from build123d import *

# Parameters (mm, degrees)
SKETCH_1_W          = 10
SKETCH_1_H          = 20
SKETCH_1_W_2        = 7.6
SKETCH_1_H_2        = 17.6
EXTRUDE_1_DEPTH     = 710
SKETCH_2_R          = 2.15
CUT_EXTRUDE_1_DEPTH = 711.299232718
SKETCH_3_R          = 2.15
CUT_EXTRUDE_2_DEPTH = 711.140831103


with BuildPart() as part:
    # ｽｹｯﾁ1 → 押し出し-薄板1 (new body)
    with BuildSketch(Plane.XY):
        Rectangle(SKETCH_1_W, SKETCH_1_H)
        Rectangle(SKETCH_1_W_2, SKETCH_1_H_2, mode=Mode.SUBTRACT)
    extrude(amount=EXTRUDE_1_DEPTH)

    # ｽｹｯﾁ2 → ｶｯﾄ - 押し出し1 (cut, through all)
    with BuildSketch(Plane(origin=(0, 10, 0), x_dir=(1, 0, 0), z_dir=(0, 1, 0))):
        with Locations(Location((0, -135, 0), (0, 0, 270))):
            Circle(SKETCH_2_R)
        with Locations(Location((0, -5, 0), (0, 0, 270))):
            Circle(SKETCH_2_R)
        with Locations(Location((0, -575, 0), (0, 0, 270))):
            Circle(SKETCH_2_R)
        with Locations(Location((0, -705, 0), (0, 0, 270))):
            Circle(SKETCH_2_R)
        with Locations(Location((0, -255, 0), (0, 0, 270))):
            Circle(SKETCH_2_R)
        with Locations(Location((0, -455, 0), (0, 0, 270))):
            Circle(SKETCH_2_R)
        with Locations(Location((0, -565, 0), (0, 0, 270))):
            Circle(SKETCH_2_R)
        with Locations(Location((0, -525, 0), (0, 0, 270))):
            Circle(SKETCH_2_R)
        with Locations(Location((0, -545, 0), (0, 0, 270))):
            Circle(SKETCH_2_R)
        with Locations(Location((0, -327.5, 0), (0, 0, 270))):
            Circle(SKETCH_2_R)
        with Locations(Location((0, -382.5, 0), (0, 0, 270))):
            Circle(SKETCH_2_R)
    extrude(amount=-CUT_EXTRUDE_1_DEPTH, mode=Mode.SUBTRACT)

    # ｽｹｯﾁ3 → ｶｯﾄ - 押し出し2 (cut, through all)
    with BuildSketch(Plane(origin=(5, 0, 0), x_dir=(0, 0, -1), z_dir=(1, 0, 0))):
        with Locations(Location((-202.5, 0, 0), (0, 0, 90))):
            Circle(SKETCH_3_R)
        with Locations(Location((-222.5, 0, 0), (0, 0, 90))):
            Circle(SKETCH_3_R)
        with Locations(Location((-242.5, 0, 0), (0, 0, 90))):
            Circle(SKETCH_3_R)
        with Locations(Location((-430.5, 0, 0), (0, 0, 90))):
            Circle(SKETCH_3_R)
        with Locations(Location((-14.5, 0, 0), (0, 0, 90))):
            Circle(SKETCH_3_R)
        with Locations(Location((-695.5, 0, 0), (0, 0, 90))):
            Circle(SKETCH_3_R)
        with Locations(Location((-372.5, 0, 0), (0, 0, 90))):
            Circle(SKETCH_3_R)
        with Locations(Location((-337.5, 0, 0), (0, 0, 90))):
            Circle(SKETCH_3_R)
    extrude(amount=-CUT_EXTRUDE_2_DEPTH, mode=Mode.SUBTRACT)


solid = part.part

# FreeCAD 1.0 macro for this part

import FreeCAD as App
import Part
import Sketcher
from FreeCAD import Vector

doc = App.newDocument("Part")
params = doc.addObject("Spreadsheet::Sheet", "Params")
for row, (alias, value) in enumerate([
    ("sketch1_width", "10 mm"),
    ("sketch1_height", "20 mm"),
    ("sketch1_width2", "7.6 mm"),
    ("sketch1_height2", "17.6 mm"),
    ("pad1_length", "710 mm"),
    ("sketch2_diameter", "4.3 mm"),
    ("sketch3_diameter", "4.3 mm"),
], start=1):
    params.set(f"A{row}", alias)
    params.set(f"B{row}", "=" + value)
    params.setAlias(f"B{row}", alias)

body = doc.addObject("PartDesign::Body", "Body")

# Sketch on XY plane
sketch1 = body.newObject("Sketcher::SketchObject", "Sketch")
sketch1.AttachmentSupport = (doc.getObject("XY_Plane"), [""])
sketch1.MapMode = "FlatFace"
sketch1.addGeometry([
    Part.LineSegment(Vector(-5, 10, 0), Vector(-5, -10, 0)),  # 0
    Part.LineSegment(Vector(-5, -10, 0), Vector(5, -10, 0)),  # 1
    Part.LineSegment(Vector(5, -10, 0), Vector(5, 10, 0)),  # 2
    Part.LineSegment(Vector(5, 10, 0), Vector(-5, 10, 0)),  # 3
    Part.LineSegment(Vector(3.8, -8.8, 0), Vector(-3.8, -8.8, 0)),  # 4
    Part.LineSegment(Vector(-3.8, -8.8, 0), Vector(-3.8, 8.8, 0)),  # 5
    Part.LineSegment(Vector(-3.8, 8.8, 0), Vector(3.8, 8.8, 0)),  # 6
    Part.LineSegment(Vector(3.8, 8.8, 0), Vector(3.8, -8.8, 0)),  # 7
], False)
sketch1.addConstraint([
    Sketcher.Constraint("Coincident", 0, 2, 1, 1),
    Sketcher.Constraint("Coincident", 1, 2, 2, 1),
    Sketcher.Constraint("Coincident", 2, 2, 3, 1),
    Sketcher.Constraint("Coincident", 3, 2, 0, 1),
    Sketcher.Constraint("Coincident", 4, 2, 5, 1),
    Sketcher.Constraint("Coincident", 5, 2, 6, 1),
    Sketcher.Constraint("Coincident", 6, 2, 7, 1),
    Sketcher.Constraint("Coincident", 7, 2, 4, 1),
    Sketcher.Constraint("Vertical", 0),
    Sketcher.Constraint("Horizontal", 1),
    Sketcher.Constraint("Vertical", 2),
    Sketcher.Constraint("Horizontal", 3),
    Sketcher.Constraint("Horizontal", 4),
    Sketcher.Constraint("Vertical", 5),
    Sketcher.Constraint("Horizontal", 6),
    Sketcher.Constraint("Vertical", 7),
    Sketcher.Constraint("Symmetric", 0, 2, 2, 2, -1, 1),
    Sketcher.Constraint("Symmetric", 4, 2, 6, 2, -1, 1),
    Sketcher.Constraint("DistanceX", 1, 1, 1, 2, 10.0),
    Sketcher.Constraint("DistanceY", 0, 2, 0, 1, 20.0),
    Sketcher.Constraint("DistanceX", 4, 2, 4, 1, 7.6),
    Sketcher.Constraint("DistanceY", 5, 1, 5, 2, 17.6),
])
sketch1.setExpression("Constraints[18]", "Params.sketch1_width")
sketch1.setExpression("Constraints[19]", "Params.sketch1_height")
sketch1.setExpression("Constraints[20]", "Params.sketch1_width2")
sketch1.setExpression("Constraints[21]", "Params.sketch1_height2")
pad1 = body.newObject("PartDesign::Pad", "Pad")
pad1.Profile = sketch1
pad1.setExpression("Length", "Params.pad1_length")

# Sketch on XZ plane
sketch2 = body.newObject("Sketcher::SketchObject", "Sketch001")
sketch2.AttachmentSupport = (doc.getObject("XZ_Plane"), [""])
sketch2.MapMode = "FlatFace"
sketch2.AttachmentOffset = App.Placement(Vector(0, 0, -10), App.Rotation())
sketch2.addGeometry([
    Part.Circle(Vector(0, 135, 0), Vector(0, 0, 1), 2.15),  # 0
    Part.Circle(Vector(0, 5, 0), Vector(0, 0, 1), 2.15),  # 1
    Part.Circle(Vector(0, 575, 0), Vector(0, 0, 1), 2.15),  # 2
    Part.Circle(Vector(0, 705, 0), Vector(0, 0, 1), 2.15),  # 3
    Part.Circle(Vector(0, 255, 0), Vector(0, 0, 1), 2.15),  # 4
    Part.Circle(Vector(0, 455, 0), Vector(0, 0, 1), 2.15),  # 5
    Part.Circle(Vector(0, 565, 0), Vector(0, 0, 1), 2.15),  # 6
    Part.Circle(Vector(0, 525, 0), Vector(0, 0, 1), 2.15),  # 7
    Part.Circle(Vector(0, 545, 0), Vector(0, 0, 1), 2.15),  # 8
    Part.Circle(Vector(0, 327.5, 0), Vector(0, 0, 1), 2.15),  # 9
    Part.Circle(Vector(0, 382.5, 0), Vector(0, 0, 1), 2.15),  # 10
], False)
sketch2.addConstraint([
    Sketcher.Constraint("Equal", 0, 1),
    Sketcher.Constraint("Equal", 1, 2),
    Sketcher.Constraint("Equal", 2, 3),
    Sketcher.Constraint("Equal", 3, 4),
    Sketcher.Constraint("Equal", 4, 5),
    Sketcher.Constraint("Equal", 5, 6),
    Sketcher.Constraint("Equal", 6, 7),
    Sketcher.Constraint("Equal", 7, 8),
    Sketcher.Constraint("Equal", 8, 9),
    Sketcher.Constraint("Equal", 9, 10),
    Sketcher.Constraint("PointOnObject", 0, 3, -2),
    Sketcher.Constraint("PointOnObject", 1, 3, -2),
    Sketcher.Constraint("PointOnObject", 2, 3, -2),
    Sketcher.Constraint("PointOnObject", 3, 3, -2),
    Sketcher.Constraint("PointOnObject", 4, 3, -2),
    Sketcher.Constraint("PointOnObject", 5, 3, -2),
    Sketcher.Constraint("PointOnObject", 6, 3, -2),
    Sketcher.Constraint("PointOnObject", 7, 3, -2),
    Sketcher.Constraint("PointOnObject", 8, 3, -2),
    Sketcher.Constraint("PointOnObject", 9, 3, -2),
    Sketcher.Constraint("PointOnObject", 10, 3, -2),
    Sketcher.Constraint("Diameter", 0, 4.3),
    Sketcher.Constraint("DistanceY", -1, 1, 0, 3, 135.0),
    Sketcher.Constraint("DistanceY", -1, 1, 1, 3, 5.0),
    Sketcher.Constraint("DistanceY", -1, 1, 2, 3, 575.0),
    Sketcher.Constraint("DistanceY", -1, 1, 3, 3, 705.0),
    Sketcher.Constraint("DistanceY", -1, 1, 4, 3, 255.0),
    Sketcher.Constraint("DistanceY", -1, 1, 5, 3, 455.0),
    Sketcher.Constraint("DistanceY", -1, 1, 6, 3, 565.0),
    Sketcher.Constraint("DistanceY", -1, 1, 7, 3, 525.0),
    Sketcher.Constraint("DistanceY", -1, 1, 8, 3, 545.0),
    Sketcher.Constraint("DistanceY", 9, 3, 10, 3, 55.0),
    Sketcher.Constraint("DistanceY", -1, 1, 9, 3, 327.5),
])
sketch2.setExpression("Constraints[21]", "Params.sketch2_diameter")
pocket1 = body.newObject("PartDesign::Pocket", "Pocket")
pocket1.Profile = sketch2
pocket1.Type = "ThroughAll"
pocket1.Reversed = True

# Sketch on YZ plane
sketch3 = body.newObject("Sketcher::SketchObject", "Sketch002")
sketch3.AttachmentSupport = (doc.getObject("YZ_Plane"), [""])
sketch3.MapMode = "FlatFace"
sketch3.AttachmentOffset = App.Placement(Vector(0, 0, 5), App.Rotation())
sketch3.addGeometry([
    Part.Circle(Vector(0, 202.5, 0), Vector(0, 0, 1), 2.15),  # 0
    Part.Circle(Vector(0, 222.5, 0), Vector(0, 0, 1), 2.15),  # 1
    Part.Circle(Vector(0, 242.5, 0), Vector(0, 0, 1), 2.15),  # 2
    Part.Circle(Vector(0, 430.5, 0), Vector(0, 0, 1), 2.15),  # 3
    Part.Circle(Vector(0, 14.5, 0), Vector(0, 0, 1), 2.15),  # 4
    Part.Circle(Vector(0, 695.5, 0), Vector(0, 0, 1), 2.15),  # 5
    Part.Circle(Vector(0, 372.5, 0), Vector(0, 0, 1), 2.15),  # 6
    Part.Circle(Vector(0, 337.5, 0), Vector(0, 0, 1), 2.15),  # 7
], False)
sketch3.addConstraint([
    Sketcher.Constraint("Equal", 0, 1),
    Sketcher.Constraint("Equal", 1, 2),
    Sketcher.Constraint("Equal", 2, 3),
    Sketcher.Constraint("Equal", 3, 4),
    Sketcher.Constraint("Equal", 4, 5),
    Sketcher.Constraint("Equal", 5, 6),
    Sketcher.Constraint("Equal", 6, 7),
    Sketcher.Constraint("PointOnObject", 0, 3, -2),
    Sketcher.Constraint("PointOnObject", 1, 3, -2),
    Sketcher.Constraint("PointOnObject", 2, 3, -2),
    Sketcher.Constraint("PointOnObject", 3, 3, -2),
    Sketcher.Constraint("PointOnObject", 4, 3, -2),
    Sketcher.Constraint("PointOnObject", 5, 3, -2),
    Sketcher.Constraint("PointOnObject", 6, 3, -2),
    Sketcher.Constraint("PointOnObject", 7, 3, -2),
    Sketcher.Constraint("Diameter", 0, 4.3),
    Sketcher.Constraint("DistanceY", 0, 3, 1, 3, 20.0),
    Sketcher.Constraint("DistanceY", 1, 3, 2, 3, 20.0),
    Sketcher.Constraint("DistanceY", 2, 3, 3, 3, 188.0),
    Sketcher.Constraint("DistanceY", 4, 3, 0, 3, 188.0),
    Sketcher.Constraint("DistanceY", 3, 3, 5, 3, 265.0),
    Sketcher.Constraint("DistanceY", 6, 3, 3, 3, 58.0),
    Sketcher.Constraint("DistanceY", 7, 3, 6, 3, 35.0),
    Sketcher.Constraint("DistanceY", -1, 1, 0, 3, 202.5),
])
sketch3.setExpression("Constraints[15]", "Params.sketch3_diameter")
pocket2 = body.newObject("PartDesign::Pocket", "Pocket001")
pocket2.Profile = sketch3
pocket2.Type = "ThroughAll"

doc.recompute()
